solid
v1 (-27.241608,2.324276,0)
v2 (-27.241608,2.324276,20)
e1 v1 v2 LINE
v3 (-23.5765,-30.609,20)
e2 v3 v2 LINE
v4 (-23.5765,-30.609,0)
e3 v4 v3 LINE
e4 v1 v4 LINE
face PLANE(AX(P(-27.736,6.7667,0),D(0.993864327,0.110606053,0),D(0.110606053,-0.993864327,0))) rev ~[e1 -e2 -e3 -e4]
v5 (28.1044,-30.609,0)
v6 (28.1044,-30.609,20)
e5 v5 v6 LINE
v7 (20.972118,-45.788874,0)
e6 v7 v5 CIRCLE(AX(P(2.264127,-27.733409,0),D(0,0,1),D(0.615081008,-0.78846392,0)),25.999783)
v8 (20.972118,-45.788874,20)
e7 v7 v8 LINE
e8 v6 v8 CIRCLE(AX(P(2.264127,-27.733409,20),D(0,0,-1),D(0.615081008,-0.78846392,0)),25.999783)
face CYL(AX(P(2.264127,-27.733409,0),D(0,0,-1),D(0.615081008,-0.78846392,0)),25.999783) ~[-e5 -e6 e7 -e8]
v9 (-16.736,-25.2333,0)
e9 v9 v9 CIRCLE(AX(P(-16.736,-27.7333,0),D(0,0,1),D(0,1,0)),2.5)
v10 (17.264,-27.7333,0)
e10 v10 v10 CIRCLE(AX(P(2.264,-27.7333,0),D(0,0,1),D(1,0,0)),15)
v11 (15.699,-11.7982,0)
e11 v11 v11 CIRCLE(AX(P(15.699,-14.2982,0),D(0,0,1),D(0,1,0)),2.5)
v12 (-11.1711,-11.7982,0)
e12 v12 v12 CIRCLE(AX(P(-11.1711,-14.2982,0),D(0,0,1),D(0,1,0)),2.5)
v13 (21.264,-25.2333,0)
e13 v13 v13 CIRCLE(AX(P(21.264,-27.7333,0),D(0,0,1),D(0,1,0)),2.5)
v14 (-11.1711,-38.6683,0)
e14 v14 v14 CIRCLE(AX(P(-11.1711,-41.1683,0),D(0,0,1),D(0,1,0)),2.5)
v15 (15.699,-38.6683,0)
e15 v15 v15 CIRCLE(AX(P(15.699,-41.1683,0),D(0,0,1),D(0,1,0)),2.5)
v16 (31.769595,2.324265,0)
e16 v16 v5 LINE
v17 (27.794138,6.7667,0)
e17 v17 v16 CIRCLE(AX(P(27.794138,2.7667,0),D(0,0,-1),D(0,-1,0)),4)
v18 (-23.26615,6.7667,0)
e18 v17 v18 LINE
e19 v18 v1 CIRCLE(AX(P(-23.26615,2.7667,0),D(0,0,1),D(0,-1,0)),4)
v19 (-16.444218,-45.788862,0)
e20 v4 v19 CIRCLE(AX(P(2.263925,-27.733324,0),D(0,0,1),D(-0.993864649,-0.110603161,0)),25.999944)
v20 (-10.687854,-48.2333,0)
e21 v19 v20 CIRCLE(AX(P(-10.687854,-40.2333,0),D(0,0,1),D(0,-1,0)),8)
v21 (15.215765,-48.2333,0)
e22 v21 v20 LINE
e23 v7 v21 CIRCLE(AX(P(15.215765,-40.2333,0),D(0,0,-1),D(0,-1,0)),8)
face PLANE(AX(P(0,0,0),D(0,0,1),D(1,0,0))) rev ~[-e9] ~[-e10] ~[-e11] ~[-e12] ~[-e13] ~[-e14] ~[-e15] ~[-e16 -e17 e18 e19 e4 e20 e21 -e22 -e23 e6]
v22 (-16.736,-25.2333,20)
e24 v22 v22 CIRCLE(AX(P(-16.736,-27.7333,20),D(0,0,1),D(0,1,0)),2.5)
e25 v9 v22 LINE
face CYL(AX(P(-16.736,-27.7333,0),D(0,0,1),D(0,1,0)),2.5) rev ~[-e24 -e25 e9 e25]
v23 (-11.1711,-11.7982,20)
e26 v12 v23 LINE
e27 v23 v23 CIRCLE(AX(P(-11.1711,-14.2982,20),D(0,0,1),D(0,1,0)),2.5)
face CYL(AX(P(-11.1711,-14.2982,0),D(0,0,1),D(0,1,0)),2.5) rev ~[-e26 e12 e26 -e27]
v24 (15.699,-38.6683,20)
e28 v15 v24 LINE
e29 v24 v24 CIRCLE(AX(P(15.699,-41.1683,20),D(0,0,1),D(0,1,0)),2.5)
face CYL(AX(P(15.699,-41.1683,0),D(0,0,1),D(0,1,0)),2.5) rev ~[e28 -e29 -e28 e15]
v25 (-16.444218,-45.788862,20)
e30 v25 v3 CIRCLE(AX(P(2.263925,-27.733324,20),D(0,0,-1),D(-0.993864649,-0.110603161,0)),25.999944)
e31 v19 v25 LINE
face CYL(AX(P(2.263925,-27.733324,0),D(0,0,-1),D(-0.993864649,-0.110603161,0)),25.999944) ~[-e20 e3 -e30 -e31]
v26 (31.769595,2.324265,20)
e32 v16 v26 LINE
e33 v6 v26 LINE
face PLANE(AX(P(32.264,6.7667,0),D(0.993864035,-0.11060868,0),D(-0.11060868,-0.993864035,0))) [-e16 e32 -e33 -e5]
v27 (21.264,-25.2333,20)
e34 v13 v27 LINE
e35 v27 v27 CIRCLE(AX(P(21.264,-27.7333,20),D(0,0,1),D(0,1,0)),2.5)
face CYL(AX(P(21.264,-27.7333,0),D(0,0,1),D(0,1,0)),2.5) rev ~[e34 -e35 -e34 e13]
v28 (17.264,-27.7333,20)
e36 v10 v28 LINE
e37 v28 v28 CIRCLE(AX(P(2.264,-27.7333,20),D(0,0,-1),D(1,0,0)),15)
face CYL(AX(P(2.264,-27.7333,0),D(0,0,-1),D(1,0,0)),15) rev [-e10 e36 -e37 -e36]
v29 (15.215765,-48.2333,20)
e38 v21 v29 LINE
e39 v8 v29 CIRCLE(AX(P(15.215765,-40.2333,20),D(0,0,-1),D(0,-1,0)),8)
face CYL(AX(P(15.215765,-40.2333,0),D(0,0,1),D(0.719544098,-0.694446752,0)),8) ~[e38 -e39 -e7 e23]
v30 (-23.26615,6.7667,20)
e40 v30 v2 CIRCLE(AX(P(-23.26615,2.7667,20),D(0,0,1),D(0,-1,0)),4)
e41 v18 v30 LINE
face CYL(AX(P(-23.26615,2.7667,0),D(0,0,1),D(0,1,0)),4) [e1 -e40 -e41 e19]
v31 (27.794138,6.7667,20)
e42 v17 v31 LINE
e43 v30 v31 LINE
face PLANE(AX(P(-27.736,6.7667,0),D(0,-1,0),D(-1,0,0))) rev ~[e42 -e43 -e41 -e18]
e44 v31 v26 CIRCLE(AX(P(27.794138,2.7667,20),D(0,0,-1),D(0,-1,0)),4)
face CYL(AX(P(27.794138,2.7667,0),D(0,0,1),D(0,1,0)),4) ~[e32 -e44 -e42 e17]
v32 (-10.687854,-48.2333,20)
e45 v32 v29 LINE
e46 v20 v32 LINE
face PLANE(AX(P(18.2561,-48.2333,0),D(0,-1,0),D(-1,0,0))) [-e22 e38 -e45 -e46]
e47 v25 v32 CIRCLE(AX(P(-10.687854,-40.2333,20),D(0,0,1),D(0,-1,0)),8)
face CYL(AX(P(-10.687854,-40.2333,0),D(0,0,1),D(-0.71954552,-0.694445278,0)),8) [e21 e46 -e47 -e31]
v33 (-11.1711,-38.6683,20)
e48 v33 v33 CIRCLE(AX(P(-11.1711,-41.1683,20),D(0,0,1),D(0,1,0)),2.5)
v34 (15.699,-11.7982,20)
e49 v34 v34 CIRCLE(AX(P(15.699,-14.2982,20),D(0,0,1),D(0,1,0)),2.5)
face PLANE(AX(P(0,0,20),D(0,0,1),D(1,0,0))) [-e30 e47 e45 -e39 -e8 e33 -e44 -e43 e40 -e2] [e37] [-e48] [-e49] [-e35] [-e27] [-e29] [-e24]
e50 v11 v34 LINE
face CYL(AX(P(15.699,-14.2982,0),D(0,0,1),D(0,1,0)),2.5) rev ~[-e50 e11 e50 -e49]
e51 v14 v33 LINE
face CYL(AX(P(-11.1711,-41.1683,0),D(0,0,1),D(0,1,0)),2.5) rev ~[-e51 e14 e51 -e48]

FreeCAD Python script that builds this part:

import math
import FreeCAD as App
import Part
import Sketcher
from FreeCAD import Vector


def edges_at(feature, points):
    """Names of the edges that pass closest to the given points."""
    edges = feature.Shape.Edges
    near = lambda p: min(range(len(edges)), key=lambda i: edges[i].distToShape(Part.Vertex(*p))[0])
    return sorted({f"Edge{near(p) + 1}" for p in points})

doc = App.newDocument("Part")
body = doc.addObject("PartDesign::Body", "Body")

# Sketch on XY plane
sketch1 = body.newObject("Sketcher::SketchObject", "Sketch")
sketch1.AttachmentSupport = (doc.getObject("XY_Plane"), [""])
sketch1.MapMode = "FlatFace"
sketch1.addGeometry([
    Part.LineSegment(Vector(-7.736, 26.7667, 0), Vector(-47.736, 26.7667, 0)),  # 0
    Part.LineSegment(Vector(-47.736, 26.7667, 0), Vector(-47.736, 6.7667, 0)),  # 1
    Part.LineSegment(Vector(-47.736, 6.7667, 0), Vector(-27.736, 6.7667, 0)),  # 2
    Part.LineSegment(Vector(-27.736, 6.7667, 0), Vector(-27.736, -48.2333, 0)),  # 3
    Part.LineSegment(Vector(-27.736, -48.2333, 0), Vector(32.264, -48.2333, 0)),  # 4
    Part.LineSegment(Vector(32.264, -48.2333, 0), Vector(32.264, 6.7667, 0)),  # 5
    Part.LineSegment(Vector(32.264, 6.7667, 0), Vector(52.264, 6.7667, 0)),  # 6
    Part.LineSegment(Vector(52.264, 6.7667, 0), Vector(52.264, 26.7667, 0)),  # 7
    Part.LineSegment(Vector(52.264, 26.7667, 0), Vector(12.264, 26.7667, 0)),  # 8
    Part.LineSegment(Vector(12.264, 26.7667, 0), Vector(12.264, 66.7667, 0)),  # 9
    Part.LineSegment(Vector(12.264, 66.7667, 0), Vector(-7.736, 66.7667, 0)),  # 10
    Part.LineSegment(Vector(-7.736, 66.7667, 0), Vector(-7.736, 26.7667, 0)),  # 11
], False)
sketch1.addConstraint([
    Sketcher.Constraint("Coincident", 0, 2, 1, 1),
    Sketcher.Constraint("Coincident", 1, 2, 2, 1),
    Sketcher.Constraint("Coincident", 2, 2, 3, 1),
    Sketcher.Constraint("Coincident", 3, 2, 4, 1),
    Sketcher.Constraint("Coincident", 4, 2, 5, 1),
    Sketcher.Constraint("Coincident", 5, 2, 6, 1),
    Sketcher.Constraint("Coincident", 6, 2, 7, 1),
    Sketcher.Constraint("Coincident", 7, 2, 8, 1),
    Sketcher.Constraint("Coincident", 8, 2, 9, 1),
    Sketcher.Constraint("Coincident", 9, 2, 10, 1),
    Sketcher.Constraint("Coincident", 10, 2, 11, 1),
    Sketcher.Constraint("Coincident", 11, 2, 0, 1),
    Sketcher.Constraint("Horizontal", 0),
    Sketcher.Constraint("Vertical", 1),
    Sketcher.Constraint("Horizontal", 2),
    Sketcher.Constraint("Vertical", 3),
    Sketcher.Constraint("Horizontal", 4),
    Sketcher.Constraint("Vertical", 5),
    Sketcher.Constraint("Horizontal", 6),
    Sketcher.Constraint("Vertical", 7),
    Sketcher.Constraint("Horizontal", 8),
    Sketcher.Constraint("Vertical", 9),
    Sketcher.Constraint("Horizontal", 10),
    Sketcher.Constraint("Vertical", 11),
    Sketcher.Constraint("Horizontal", 2, 2, 5, 2),
    Sketcher.Constraint("Horizontal", 0, 2, 7, 2),
    Sketcher.Constraint("Equal", 2, 6),
    Sketcher.Constraint("Equal", 0, 8),
    Sketcher.Constraint("Equal", 6, 10),
    Sketcher.Constraint("Equal", 10, 1),
    Sketcher.Constraint("Equal", 8, 9),
    Sketcher.Constraint("DistanceX", 0, 2, 0, 1, 40.0),
    Sketcher.Constraint("DistanceX", 2, 1, 2, 2, 20.0),
    Sketcher.Constraint("DistanceY", 3, 2, 3, 1, 55.0),
    Sketcher.Constraint("DistanceX", 0, 2, -1, 1, 47.736),
    Sketcher.Constraint("DistanceY", -1, 1, 0, 2, 26.7667),
])
pad1 = body.newObject("PartDesign::Pad", "Pad")
pad1.Profile = sketch1
pad1.Length = 20

# Sketch on XY plane
sketch2 = body.newObject("Sketcher::SketchObject", "Sketch001")
sketch2.AttachmentSupport = (doc.getObject("XY_Plane"), [""])
sketch2.MapMode = "FlatFace"
sketch2.addGeometry([
    Part.Circle(Vector(2.264, -27.7333, 0), Vector(0, 0, 1), 15),  # 0
    Part.Circle(Vector(-37.736, 16.7667, 0), Vector(0, 0, 1), 2),  # 1
    Part.Circle(Vector(2.264, 16.7667, 0), Vector(0, 0, 1), 2),  # 2
    Part.Circle(Vector(42.264, 16.7667, 0), Vector(0, 0, 1), 2),  # 3
    Part.Circle(Vector(2.264, 56.7667, 0), Vector(0, 0, 1), 2),  # 4
], False)
sketch2.addConstraint([
    Sketcher.Constraint("Equal", 1, 2),
    Sketcher.Constraint("Equal", 2, 3),
    Sketcher.Constraint("Equal", 3, 4),
    Sketcher.Constraint("Horizontal", 1, 3, 2, 3),
    Sketcher.Constraint("Horizontal", 2, 3, 3, 3),
    Sketcher.Constraint("Vertical", 0, 3, 2, 3),
    Sketcher.Constraint("Vertical", 2, 3, 4, 3),
    Sketcher.Constraint("Diameter", 0, 30.0),
    Sketcher.Constraint("Diameter", 1, 4.0),
    Sketcher.Constraint("DistanceX", 1, 3, 0, 3, 40.0),
    Sketcher.Constraint("DistanceX", 2, 3, 3, 3, 40.0),
    Sketcher.Constraint("DistanceY", 2, 3, 4, 3, 40.0),
    Sketcher.Constraint("DistanceY", 0, 3, 1, 3, 44.5),
    Sketcher.Constraint("DistanceX", -1, 1, 0, 3, 2.264),
    Sketcher.Constraint("DistanceY", 0, 3, -1, 1, 27.7333),
])
pocket1 = body.newObject("PartDesign::Pocket", "Pocket")
pocket1.Profile = sketch2
pocket1.Type = "ThroughAll"
pocket1.Reversed = True

# Sketch on XY plane
sketch3 = body.newObject("Sketcher::SketchObject", "Sketch002")
sketch3.AttachmentSupport = (doc.getObject("XY_Plane"), [""])
sketch3.MapMode = "FlatFace"
sketch3.addGeometry([
    Part.Circle(Vector(2.264, -27.7333, 0), Vector(0, 0, 1), 2.5),  # 0
    Part.Circle(Vector(21.264, -27.7333, 0), Vector(0, 0, 1), 2.5),  # 1
    Part.Circle(Vector(-11.1711, -41.1683, 0), Vector(0, 0, 1), 2.5),  # 2
    Part.Circle(Vector(15.699, -41.1683, 0), Vector(0, 0, 1), 2.5),  # 3
    Part.Circle(Vector(15.699, -14.2982, 0), Vector(0, 0, 1), 2.5),  # 4
    Part.Circle(Vector(-11.1711, -14.2982, 0), Vector(0, 0, 1), 2.5),  # 5
    Part.Circle(Vector(-16.736, -27.7333, 0), Vector(0, 0, 1), 2.5),  # 6
], False)
sketch3.addConstraint([
    Sketcher.Constraint("Equal", 0, 1),
    Sketcher.Constraint("Equal", 1, 2),
    Sketcher.Constraint("Equal", 2, 3),
    Sketcher.Constraint("Equal", 3, 4),
    Sketcher.Constraint("Equal", 4, 5),
    Sketcher.Constraint("Equal", 5, 6),
    Sketcher.Constraint("Horizontal", 0, 3, 1, 3),
    Sketcher.Constraint("Horizontal", 2, 3, 3, 3),
    Sketcher.Constraint("Horizontal", 4, 3, 5, 3),
    Sketcher.Constraint("Horizontal", 1, 3, 6, 3),
    Sketcher.Constraint("Vertical", 3, 3, 4, 3),
    Sketcher.Constraint("Vertical", 2, 3, 5, 3),
    Sketcher.Constraint("Diameter", 0, 5.0),
    Sketcher.Constraint("DistanceX", 0, 3, 1, 3, 19.0),
    Sketcher.Constraint("DistanceX", 6, 3, 0, 3, 19.0),
    Sketcher.Constraint("DistanceX", 2, 3, 3, 3, 26.87),
    Sketcher.Constraint("DistanceY", 3, 3, 4, 3, 26.87),
    Sketcher.Constraint("DistanceX", -1, 1, 0, 3, 2.264),
    Sketcher.Constraint("DistanceX", 2, 3, -1, 1, 11.171),
    Sketcher.Constraint("DistanceY", 2, 3, 0, 3, 13.435),
    Sketcher.Constraint("DistanceY", 0, 3, -1, 1, 27.7333),
])
doc.recompute()
hole = body.newObject("PartDesign::Hole", "Hole")
hole.Profile = sketch3
hole.ThreadType = "None"
hole.Diameter = 5
hole.DepthType = "ThroughAll"
hole.Reversed = True

# Sketch on XY plane
sketch4 = body.newObject("Sketcher::SketchObject", "Sketch003")
sketch4.AttachmentSupport = (doc.getObject("XY_Plane"), [""])
sketch4.MapMode = "FlatFace"
sketch4.addGeometry([
    Part.LineSegment(Vector(-23.5765, -30.609, 0), Vector(-27.736, 6.7667, 0)),  # 0
    Part.LineSegment(Vector(-27.736, 6.7667, 0), Vector(-27.736, -48.2333, 0)),  # 1
    Part.LineSegment(Vector(-27.736, -48.2333, 0), Vector(-13.7282, -48.2333, 0)),  # 2
    Part.ArcOfCircle(Part.Circle(Vector(2.264, -27.7333, 0), Vector(0, 0, 1), 25.999947), math.radians(-173.649879), math.radians(-127.958054)),  # 3
    Part.LineSegment(Vector(32.264, -48.2333, 0), Vector(32.264, 6.7667, 0)),  # 4
    Part.LineSegment(Vector(32.264, 6.7667, 0), Vector(28.1044, -30.609, 0)),  # 5
    Part.ArcOfCircle(Part.Circle(Vector(2.264, -27.7333, 0), Vector(0, 0, 1), 25.999947), math.radians(-52.04212), math.radians(-6.350145)),  # 6
    Part.LineSegment(Vector(18.2561, -48.2333, 0), Vector(32.264, -48.2333, 0)),  # 7
], False)
sketch4.addConstraint([
    Sketcher.Constraint("Coincident", 0, 2, 1, 1),
    Sketcher.Constraint("Coincident", 1, 2, 2, 1),
    Sketcher.Constraint("Coincident", 2, 2, 3, 2),
    Sketcher.Constraint("Tangent", 3, 1, 0, 1),
    Sketcher.Constraint("Coincident", 4, 2, 5, 1),
    Sketcher.Constraint("Tangent", 5, 2, 6, 2),
    Sketcher.Constraint("Coincident", 6, 1, 7, 1),
    Sketcher.Constraint("Coincident", 7, 2, 4, 1),
    Sketcher.Constraint("Vertical", 1),
    Sketcher.Constraint("Horizontal", 2),
    Sketcher.Constraint("Vertical", 4),
    Sketcher.Constraint("Horizontal", 7),
    Sketcher.Constraint("Coincident", 6, 3, 3, 3),
    Sketcher.Constraint("Equal", 3, 6),
    Sketcher.Constraint("Horizontal", 0, 2, 4, 2),
    Sketcher.Constraint("Horizontal", 3, 1, 5, 2),
    Sketcher.Constraint("Horizontal", 2, 2, 6, 1),
    Sketcher.Constraint("DistanceY", 1, 2, 1, 1, 55.0),
    Sketcher.Constraint("Radius", 3, 26.0),
    Sketcher.Constraint("DistanceX", 0, 2, 3, 3, 30.0),
    Sketcher.Constraint("DistanceY", 3, 3, 0, 2, 34.5),
    Sketcher.Constraint("DistanceX", -1, 1, 3, 3, 2.264),
    Sketcher.Constraint("DistanceY", 3, 1, -1, 1, 30.609),
])
pocket2 = body.newObject("PartDesign::Pocket", "Pocket001")
pocket2.Profile = sketch4
pocket2.Type = "ThroughAll"
pocket2.Reversed = True

# Sketch on XY plane
sketch5 = body.newObject("Sketcher::SketchObject", "Sketch004")
sketch5.AttachmentSupport = (doc.getObject("XY_Plane"), [""])
sketch5.MapMode = "FlatFace"
sketch5.addGeometry([
    Part.LineSegment(Vector(-7.736, 26.7667, 0), Vector(-47.736, 26.7667, 0)),  # 0
    Part.LineSegment(Vector(-47.736, 26.7667, 0), Vector(-47.736, 6.7667, 0)),  # 1
    Part.LineSegment(Vector(-47.736, 6.7667, 0), Vector(52.264, 6.7667, 0)),  # 2
    Part.LineSegment(Vector(52.264, 6.7667, 0), Vector(52.264, 26.7667, 0)),  # 3
    Part.LineSegment(Vector(52.264, 26.7667, 0), Vector(12.264, 26.7667, 0)),  # 4
    Part.LineSegment(Vector(12.264, 26.7667, 0), Vector(12.264, 66.7667, 0)),  # 5
    Part.LineSegment(Vector(12.264, 66.7667, 0), Vector(-7.736, 66.7667, 0)),  # 6
    Part.LineSegment(Vector(-7.736, 66.7667, 0), Vector(-7.736, 26.7667, 0)),  # 7
    Part.Circle(Vector(-37.736, 16.7667, 0), Vector(0, 0, 1), 2),  # 8
    Part.Circle(Vector(2.264, 16.7667, 0), Vector(0, 0, 1), 2),  # 9
    Part.Circle(Vector(42.264, 16.7667, 0), Vector(0, 0, 1), 2),  # 10
    Part.Circle(Vector(2.264, 56.7667, 0), Vector(0, 0, 1), 2),  # 11
], False)
sketch5.addConstraint([
    Sketcher.Constraint("Coincident", 0, 2, 1, 1),
    Sketcher.Constraint("Coincident", 1, 2, 2, 1),
    Sketcher.Constraint("Coincident", 2, 2, 3, 1),
    Sketcher.Constraint("Coincident", 3, 2, 4, 1),
    Sketcher.Constraint("Coincident", 4, 2, 5, 1),
    Sketcher.Constraint("Coincident", 5, 2, 6, 1),
    Sketcher.Constraint("Coincident", 6, 2, 7, 1),
    Sketcher.Constraint("Coincident", 7, 2, 0, 1),
    Sketcher.Constraint("Horizontal", 0),
    Sketcher.Constraint("Vertical", 1),
    Sketcher.Constraint("Horizontal", 2),
    Sketcher.Constraint("Vertical", 3),
    Sketcher.Constraint("Horizontal", 4),
    Sketcher.Constraint("Vertical", 5),
    Sketcher.Constraint("Horizontal", 6),
    Sketcher.Constraint("Vertical", 7),
    Sketcher.Constraint("Equal", 8, 9),
    Sketcher.Constraint("Equal", 9, 10),
    Sketcher.Constraint("Equal", 10, 11),
    Sketcher.Constraint("Horizontal", 8, 3, 9, 3),
    Sketcher.Constraint("Horizontal", 9, 3, 10, 3),
    Sketcher.Constraint("Horizontal", 0, 2, 3, 2),
    Sketcher.Constraint("Vertical", 9, 3, 11, 3),
    Sketcher.Constraint("Equal", 0, 4),
    Sketcher.Constraint("Equal", 6, 1),
    Sketcher.Constraint("Equal", 4, 5),
    Sketcher.Constraint("Diameter", 8, 4.0),
    Sketcher.Constraint("DistanceX", 0, 2, 0, 1, 40.0),
    Sketcher.Constraint("DistanceX", 2, 1, 2, 2, 100.0),
    Sketcher.Constraint("DistanceX", 8, 3, 9, 3, 40.0),
    Sketcher.Constraint("DistanceX", 9, 3, 10, 3, 40.0),
    Sketcher.Constraint("DistanceY", 9, 3, 11, 3, 40.0),
    Sketcher.Constraint("DistanceX", 0, 2, 8, 3, 10.0),
    Sketcher.Constraint("DistanceY", 8, 3, 0, 2, 10.0),
    Sketcher.Constraint("DistanceX", 8, 3, -1, 1, 37.736),
    Sketcher.Constraint("DistanceY", -1, 1, 8, 3, 16.7667),
])
pocket3 = body.newObject("PartDesign::Pocket", "Pocket002")
pocket3.Profile = sketch5
pocket3.Type = "ThroughAll"
pocket3.Reversed = True
doc.recompute()

fillet = body.newObject("PartDesign::Fillet", "Fillet")
fillet.Base = (pocket3, edges_at(pocket3, [(32.264, 6.767, 10), (-27.736, 6.767, 10)]))
fillet.Radius = 4
doc.recompute()

fillet2 = body.newObject("PartDesign::Fillet", "Fillet001")
fillet2.Base = (fillet, edges_at(fillet, [(-13.728, -48.233, 10), (18.256, -48.233, 10)]))
fillet2.Radius = 8

doc.recompute()
